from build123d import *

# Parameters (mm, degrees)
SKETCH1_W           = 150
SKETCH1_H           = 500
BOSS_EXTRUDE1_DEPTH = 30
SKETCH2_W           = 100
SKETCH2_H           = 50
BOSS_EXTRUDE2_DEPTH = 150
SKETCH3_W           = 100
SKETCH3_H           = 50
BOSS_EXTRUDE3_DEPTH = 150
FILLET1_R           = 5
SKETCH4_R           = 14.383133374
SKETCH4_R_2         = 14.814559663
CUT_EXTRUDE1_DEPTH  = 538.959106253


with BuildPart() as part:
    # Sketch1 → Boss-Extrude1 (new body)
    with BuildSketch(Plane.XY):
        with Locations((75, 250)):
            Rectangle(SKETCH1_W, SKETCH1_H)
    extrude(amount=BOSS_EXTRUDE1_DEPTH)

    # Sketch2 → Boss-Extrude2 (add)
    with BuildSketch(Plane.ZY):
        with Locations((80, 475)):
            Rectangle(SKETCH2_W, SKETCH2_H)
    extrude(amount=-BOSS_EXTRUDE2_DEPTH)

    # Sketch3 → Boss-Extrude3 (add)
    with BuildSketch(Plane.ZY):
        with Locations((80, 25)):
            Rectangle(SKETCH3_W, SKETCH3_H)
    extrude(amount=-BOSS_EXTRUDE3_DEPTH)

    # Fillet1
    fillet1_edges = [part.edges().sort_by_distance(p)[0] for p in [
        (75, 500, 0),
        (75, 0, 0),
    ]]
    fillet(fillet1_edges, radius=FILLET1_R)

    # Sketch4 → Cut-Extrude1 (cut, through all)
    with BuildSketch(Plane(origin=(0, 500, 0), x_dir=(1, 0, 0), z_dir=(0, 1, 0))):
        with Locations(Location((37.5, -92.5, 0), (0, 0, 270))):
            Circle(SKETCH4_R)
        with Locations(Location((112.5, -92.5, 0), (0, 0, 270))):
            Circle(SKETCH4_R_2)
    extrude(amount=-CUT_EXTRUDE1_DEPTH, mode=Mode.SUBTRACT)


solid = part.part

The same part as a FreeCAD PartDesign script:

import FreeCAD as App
import Part
import Sketcher

V = App.Vector


def edges_at(feature, points):
    """Names of the edges that pass closest to the given points."""
    edges = feature.Shape.Edges
    near = lambda p: min(range(len(edges)), key=lambda i: edges[i].distToShape(Part.Vertex(*p))[0])
    return sorted({f"Edge{near(p) + 1}" for p in points})

doc = App.newDocument("Part")
body = doc.addObject("PartDesign::Body", "Body")

# Sketch on XY plane
sketch1 = doc.addObject("Sketcher::SketchObject", "Sketch")
body.addObject(sketch1)
sketch1.AttachmentSupport = (doc.XY_Plane, [""])
sketch1.MapMode = "FlatFace"
sketch1.addGeometry(Part.LineSegment(V(0, 500, 0), V(0, 0, 0)), False)
sketch1.addGeometry(Part.LineSegment(V(0, 0, 0), V(150, 0, 0)), False)
sketch1.addGeometry(Part.LineSegment(V(150, 0, 0), V(150, 500, 0)), False)
sketch1.addGeometry(Part.LineSegment(V(150, 500, 0), V(0, 500, 0)), False)
sketch1.addConstraint(Sketcher.Constraint("Coincident", 0, 2, 1, 1))
sketch1.addConstraint(Sketcher.Constraint("Coincident", 1, 2, 2, 1))
sketch1.addConstraint(Sketcher.Constraint("Coincident", 2, 2, 3, 1))
sketch1.addConstraint(Sketcher.Constraint("Coincident", 3, 2, 0, 1))
sketch1.addConstraint(Sketcher.Constraint("Vertical", 0))
sketch1.addConstraint(Sketcher.Constraint("Horizontal", 1))
sketch1.addConstraint(Sketcher.Constraint("Vertical", 2))
sketch1.addConstraint(Sketcher.Constraint("Horizontal", 3))
sketch1.addConstraint(Sketcher.Constraint("Coincident", 0, 2, -1, 1))
sketch1.addConstraint(Sketcher.Constraint("DistanceX", 1, 1, 1, 2, 150.0))
sketch1.addConstraint(Sketcher.Constraint("DistanceY", 0, 2, 0, 1, 500.0))
pad1 = doc.addObject("PartDesign::Pad", "Pad")
body.addObject(pad1)
pad1.Profile = sketch1
pad1.Length = 30

# Sketch on YZ plane
sketch2 = doc.addObject("Sketcher::SketchObject", "Sketch001")
body.addObject(sketch2)
sketch2.AttachmentSupport = (doc.YZ_Plane, [""])
sketch2.MapMode = "FlatFace"
sketch2.addGeometry(Part.LineSegment(V(500, 30, 0), V(450, 30, 0)), False)
sketch2.addGeometry(Part.LineSegment(V(450, 30, 0), V(450, 130, 0)), False)
sketch2.addGeometry(Part.LineSegment(V(450, 130, 0), V(500, 130, 0)), False)
sketch2.addGeometry(Part.LineSegment(V(500, 130, 0), V(500, 30, 0)), False)
sketch2.addConstraint(Sketcher.Constraint("Coincident", 0, 2, 1, 1))
sketch2.addConstraint(Sketcher.Constraint("Coincident", 1, 2, 2, 1))
sketch2.addConstraint(Sketcher.Constraint("Coincident", 2, 2, 3, 1))
sketch2.addConstraint(Sketcher.Constraint("Coincident", 3, 2, 0, 1))
sketch2.addConstraint(Sketcher.Constraint("Horizontal", 0))
sketch2.addConstraint(Sketcher.Constraint("Vertical", 1))
sketch2.addConstraint(Sketcher.Constraint("Horizontal", 2))
sketch2.addConstraint(Sketcher.Constraint("Vertical", 3))
sketch2.addConstraint(Sketcher.Constraint("DistanceX", 0, 2, 0, 1, 50.0))
sketch2.addConstraint(Sketcher.Constraint("DistanceY", 1, 1, 1, 2, 100.0))
sketch2.addConstraint(Sketcher.Constraint("DistanceX", -1, 1, 0, 2, 450.0))
sketch2.addConstraint(Sketcher.Constraint("DistanceY", -1, 1, 0, 2, 30.0))
pad2 = doc.addObject("PartDesign::Pad", "Pad001")
body.addObject(pad2)
pad2.Profile = sketch2
pad2.Length = 150

# Sketch on YZ plane
sketch3 = doc.addObject("Sketcher::SketchObject", "Sketch002")
body.addObject(sketch3)
sketch3.AttachmentSupport = (doc.YZ_Plane, [""])
sketch3.MapMode = "FlatFace"
sketch3.addGeometry(Part.LineSegment(V(50, 30, 0), V(0, 30, 0)), False)
sketch3.addGeometry(Part.LineSegment(V(0, 30, 0), V(0, 130, 0)), False)
sketch3.addGeometry(Part.LineSegment(V(0, 130, 0), V(50, 130, 0)), False)
sketch3.addGeometry(Part.LineSegment(V(50, 130, 0), V(50, 30, 0)), False)
sketch3.addConstraint(Sketcher.Constraint("Coincident", 0, 2, 1, 1))
sketch3.addConstraint(Sketcher.Constraint("Coincident", 1, 2, 2, 1))
sketch3.addConstraint(Sketcher.Constraint("Coincident", 2, 2, 3, 1))
sketch3.addConstraint(Sketcher.Constraint("Coincident", 3, 2, 0, 1))
sketch3.addConstraint(Sketcher.Constraint("Horizontal", 0))
sketch3.addConstraint(Sketcher.Constraint("Vertical", 1))
sketch3.addConstraint(Sketcher.Constraint("Horizontal", 2))
sketch3.addConstraint(Sketcher.Constraint("Vertical", 3))
sketch3.addConstraint(Sketcher.Constraint("PointOnObject", 0, 2, -2))
sketch3.addConstraint(Sketcher.Constraint("DistanceX", 0, 2, 0, 1, 50.0))
sketch3.addConstraint(Sketcher.Constraint("DistanceY", 1, 1, 1, 2, 100.0))
sketch3.addConstraint(Sketcher.Constraint("DistanceY", -1, 1, 0, 2, 30.0))
pad3 = doc.addObject("PartDesign::Pad", "Pad002")
body.addObject(pad3)
pad3.Profile = sketch3
pad3.Length = 150
doc.recompute()

fillet = doc.addObject("PartDesign::Fillet", "Fillet")
body.addObject(fillet)
fillet.Base = (pad3, edges_at(pad3, [(75, 500, 0), (75, 0, 0)]))
fillet.Radius = 5

# Sketch on XZ plane
sketch4 = doc.addObject("Sketcher::SketchObject", "Sketch003")
body.addObject(sketch4)
sketch4.AttachmentSupport = (doc.XZ_Plane, [""])
sketch4.MapMode = "FlatFace"
sketch4.AttachmentOffset = App.Placement(V(0, 0, -500), App.Rotation())
sketch4.addGeometry(Part.Circle(V(38, 92, 0), V(0, 0, 1), 14), False)
sketch4.addGeometry(Part.Circle(V(112, 92, 0), V(0, 0, 1), 15), False)
sketch4.addConstraint(Sketcher.Constraint("Horizontal", 0, 3, 1, 3))
sketch4.addConstraint(Sketcher.Constraint("DistanceX", 0, 3, 1, 3, 75.0))
sketch4.addConstraint(Sketcher.Constraint("DistanceX", -1, 1, 0, 3, 37.5))
sketch4.addConstraint(Sketcher.Constraint("DistanceY", -1, 1, 0, 3, 92.5))
sketch4.addConstraint(Sketcher.Constraint("Diameter", 1, 29.629119))
sketch4.addConstraint(Sketcher.Constraint("Diameter", 0, 28.766267))
pocket1 = doc.addObject("PartDesign::Pocket", "Pocket")
body.addObject(pocket1)
pocket1.Profile = sketch4
pocket1.Type = "ThroughAll"
pocket1.Reversed = True

doc.recompute()
